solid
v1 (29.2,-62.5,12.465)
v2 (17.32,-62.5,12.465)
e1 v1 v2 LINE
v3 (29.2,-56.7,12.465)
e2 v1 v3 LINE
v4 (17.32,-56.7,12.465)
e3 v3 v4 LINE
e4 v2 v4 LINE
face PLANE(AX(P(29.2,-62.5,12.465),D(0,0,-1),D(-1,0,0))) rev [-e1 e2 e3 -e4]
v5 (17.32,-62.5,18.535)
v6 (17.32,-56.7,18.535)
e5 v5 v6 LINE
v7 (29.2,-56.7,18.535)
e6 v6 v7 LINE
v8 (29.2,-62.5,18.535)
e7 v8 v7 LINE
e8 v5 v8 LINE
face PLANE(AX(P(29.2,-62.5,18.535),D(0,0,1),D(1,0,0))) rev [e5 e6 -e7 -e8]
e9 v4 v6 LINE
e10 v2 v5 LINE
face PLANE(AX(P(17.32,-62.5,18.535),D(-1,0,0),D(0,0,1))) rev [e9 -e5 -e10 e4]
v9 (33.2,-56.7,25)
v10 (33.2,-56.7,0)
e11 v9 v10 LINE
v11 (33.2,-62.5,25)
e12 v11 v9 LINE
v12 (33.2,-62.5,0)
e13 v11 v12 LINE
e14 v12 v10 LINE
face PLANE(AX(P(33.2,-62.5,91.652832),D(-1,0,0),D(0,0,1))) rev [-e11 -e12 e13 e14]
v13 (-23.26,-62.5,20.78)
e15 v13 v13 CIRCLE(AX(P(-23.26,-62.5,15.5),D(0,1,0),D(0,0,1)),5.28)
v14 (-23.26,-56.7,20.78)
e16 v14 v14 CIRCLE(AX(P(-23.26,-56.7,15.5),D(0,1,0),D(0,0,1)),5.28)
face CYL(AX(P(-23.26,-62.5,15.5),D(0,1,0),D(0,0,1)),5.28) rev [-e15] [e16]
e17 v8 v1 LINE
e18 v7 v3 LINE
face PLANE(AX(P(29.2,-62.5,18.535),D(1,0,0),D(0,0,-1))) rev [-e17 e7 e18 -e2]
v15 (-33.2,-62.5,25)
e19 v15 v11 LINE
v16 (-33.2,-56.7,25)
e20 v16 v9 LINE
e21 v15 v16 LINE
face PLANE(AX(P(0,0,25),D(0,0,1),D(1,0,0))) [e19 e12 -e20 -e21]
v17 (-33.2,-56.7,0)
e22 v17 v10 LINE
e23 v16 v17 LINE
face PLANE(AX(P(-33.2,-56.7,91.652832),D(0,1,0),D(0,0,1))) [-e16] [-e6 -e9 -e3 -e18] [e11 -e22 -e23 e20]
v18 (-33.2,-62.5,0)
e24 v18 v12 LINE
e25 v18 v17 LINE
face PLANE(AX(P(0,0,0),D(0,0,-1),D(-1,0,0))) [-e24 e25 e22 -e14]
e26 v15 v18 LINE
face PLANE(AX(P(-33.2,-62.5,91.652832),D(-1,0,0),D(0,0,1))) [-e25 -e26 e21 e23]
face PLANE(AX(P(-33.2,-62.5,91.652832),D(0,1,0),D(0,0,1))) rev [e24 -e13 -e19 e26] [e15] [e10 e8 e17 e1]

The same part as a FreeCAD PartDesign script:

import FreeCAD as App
import Part
import Sketcher

doc = App.newDocument("Part")
body = doc.addObject("PartDesign::Body", "Body")

# Sketch on XY plane
sketch1 = doc.addObject("Sketcher::SketchObject", "Sketch")
body.addObject(sketch1)
sketch1.AttachmentSupport = (doc.XY_Plane, [""])
sketch1.MapMode = "FlatFace"
sketch1.addGeometry([
    Part.LineSegment(App.Vector(-33, -57, 0), App.Vector(-33, -62, 0)),
    Part.LineSegment(App.Vector(-33, -62, 0), App.Vector(33, -62, 0)),
    Part.LineSegment(App.Vector(33, -62, 0), App.Vector(33, -57, 0)),
    Part.LineSegment(App.Vector(33, -57, 0), App.Vector(-33, -57, 0)),
], False)
sketch1.addConstraint([
    Sketcher.Constraint("Coincident", 0, 2, 1, 1),
    Sketcher.Constraint("Coincident", 1, 2, 2, 1),
    Sketcher.Constraint("Coincident", 2, 2, 3, 1),
    Sketcher.Constraint("Coincident", 3, 2, 0, 1),
    Sketcher.Constraint("Vertical", 0),
    Sketcher.Constraint("Horizontal", 1),
    Sketcher.Constraint("Vertical", 2),
    Sketcher.Constraint("Horizontal", 3),
    Sketcher.Constraint("DistanceX", 1, 1, 1, 2, 66.4),
    Sketcher.Constraint("DistanceY", 0, 2, 0, 1, 5.8),
    Sketcher.Constraint("DistanceX", 0, 2, -1, 1, 33.2),
    Sketcher.Constraint("DistanceY", 0, 2, -1, 1, 62.5),
])
pad1 = doc.addObject("PartDesign::Pad", "Pad")
body.addObject(pad1)
pad1.Profile = sketch1
pad1.Length = 25

# Sketch on XZ plane
sketch2 = doc.addObject("Sketcher::SketchObject", "Sketch001")
body.addObject(sketch2)
sketch2.AttachmentSupport = (doc.XZ_Plane, [""])
sketch2.MapMode = "FlatFace"
sketch2.AttachmentOffset = App.Placement(App.Vector(0, 0, 56.7), App.Rotation())
sketch2.addGeometry([
    Part.Circle(App.Vector(-23, 16, 0), App.Vector(0, 0, 1), 5),  # 0
    Part.LineSegment(App.Vector(17, 12, 0), App.Vector(17, 19, 0)),  # 1
    Part.LineSegment(App.Vector(17, 19, 0), App.Vector(29, 19, 0)),  # 2
    Part.LineSegment(App.Vector(29, 19, 0), App.Vector(29, 12, 0)),  # 3
    Part.LineSegment(App.Vector(29, 12, 0), App.Vector(17, 12, 0)),  # 4
], False)
sketch2.addConstraint([
    Sketcher.Constraint("Coincident", 1, 2, 2, 1),
    Sketcher.Constraint("Coincident", 2, 2, 3, 1),
    Sketcher.Constraint("Coincident", 3, 2, 4, 1),
    Sketcher.Constraint("Coincident", 4, 2, 1, 1),
    Sketcher.Constraint("Vertical", 1),
    Sketcher.Constraint("Horizontal", 2),
    Sketcher.Constraint("Vertical", 3),
    Sketcher.Constraint("Horizontal", 4),
    Sketcher.Constraint("Diameter", 0, 10.56),
    Sketcher.Constraint("DistanceX", 2, 1, 2, 2, 11.88),
    Sketcher.Constraint("DistanceY", 1, 1, 1, 2, 6.07),
    Sketcher.Constraint("DistanceY", -1, 1, 0, 3, 15.5),
    Sketcher.Constraint("DistanceX", -1, 1, 2, 2, 29.2),
    Sketcher.Constraint("DistanceX", 0, 3, -1, 1, 23.26),
    Sketcher.Constraint("DistanceY", -1, 1, 1, 2, 18.535),
])
pocket1 = doc.addObject("PartDesign::Pocket", "Pocket")
body.addObject(pocket1)
pocket1.Profile = sketch2
pocket1.Type = "ThroughAll"
pocket1.Reversed = True

doc.recompute()
